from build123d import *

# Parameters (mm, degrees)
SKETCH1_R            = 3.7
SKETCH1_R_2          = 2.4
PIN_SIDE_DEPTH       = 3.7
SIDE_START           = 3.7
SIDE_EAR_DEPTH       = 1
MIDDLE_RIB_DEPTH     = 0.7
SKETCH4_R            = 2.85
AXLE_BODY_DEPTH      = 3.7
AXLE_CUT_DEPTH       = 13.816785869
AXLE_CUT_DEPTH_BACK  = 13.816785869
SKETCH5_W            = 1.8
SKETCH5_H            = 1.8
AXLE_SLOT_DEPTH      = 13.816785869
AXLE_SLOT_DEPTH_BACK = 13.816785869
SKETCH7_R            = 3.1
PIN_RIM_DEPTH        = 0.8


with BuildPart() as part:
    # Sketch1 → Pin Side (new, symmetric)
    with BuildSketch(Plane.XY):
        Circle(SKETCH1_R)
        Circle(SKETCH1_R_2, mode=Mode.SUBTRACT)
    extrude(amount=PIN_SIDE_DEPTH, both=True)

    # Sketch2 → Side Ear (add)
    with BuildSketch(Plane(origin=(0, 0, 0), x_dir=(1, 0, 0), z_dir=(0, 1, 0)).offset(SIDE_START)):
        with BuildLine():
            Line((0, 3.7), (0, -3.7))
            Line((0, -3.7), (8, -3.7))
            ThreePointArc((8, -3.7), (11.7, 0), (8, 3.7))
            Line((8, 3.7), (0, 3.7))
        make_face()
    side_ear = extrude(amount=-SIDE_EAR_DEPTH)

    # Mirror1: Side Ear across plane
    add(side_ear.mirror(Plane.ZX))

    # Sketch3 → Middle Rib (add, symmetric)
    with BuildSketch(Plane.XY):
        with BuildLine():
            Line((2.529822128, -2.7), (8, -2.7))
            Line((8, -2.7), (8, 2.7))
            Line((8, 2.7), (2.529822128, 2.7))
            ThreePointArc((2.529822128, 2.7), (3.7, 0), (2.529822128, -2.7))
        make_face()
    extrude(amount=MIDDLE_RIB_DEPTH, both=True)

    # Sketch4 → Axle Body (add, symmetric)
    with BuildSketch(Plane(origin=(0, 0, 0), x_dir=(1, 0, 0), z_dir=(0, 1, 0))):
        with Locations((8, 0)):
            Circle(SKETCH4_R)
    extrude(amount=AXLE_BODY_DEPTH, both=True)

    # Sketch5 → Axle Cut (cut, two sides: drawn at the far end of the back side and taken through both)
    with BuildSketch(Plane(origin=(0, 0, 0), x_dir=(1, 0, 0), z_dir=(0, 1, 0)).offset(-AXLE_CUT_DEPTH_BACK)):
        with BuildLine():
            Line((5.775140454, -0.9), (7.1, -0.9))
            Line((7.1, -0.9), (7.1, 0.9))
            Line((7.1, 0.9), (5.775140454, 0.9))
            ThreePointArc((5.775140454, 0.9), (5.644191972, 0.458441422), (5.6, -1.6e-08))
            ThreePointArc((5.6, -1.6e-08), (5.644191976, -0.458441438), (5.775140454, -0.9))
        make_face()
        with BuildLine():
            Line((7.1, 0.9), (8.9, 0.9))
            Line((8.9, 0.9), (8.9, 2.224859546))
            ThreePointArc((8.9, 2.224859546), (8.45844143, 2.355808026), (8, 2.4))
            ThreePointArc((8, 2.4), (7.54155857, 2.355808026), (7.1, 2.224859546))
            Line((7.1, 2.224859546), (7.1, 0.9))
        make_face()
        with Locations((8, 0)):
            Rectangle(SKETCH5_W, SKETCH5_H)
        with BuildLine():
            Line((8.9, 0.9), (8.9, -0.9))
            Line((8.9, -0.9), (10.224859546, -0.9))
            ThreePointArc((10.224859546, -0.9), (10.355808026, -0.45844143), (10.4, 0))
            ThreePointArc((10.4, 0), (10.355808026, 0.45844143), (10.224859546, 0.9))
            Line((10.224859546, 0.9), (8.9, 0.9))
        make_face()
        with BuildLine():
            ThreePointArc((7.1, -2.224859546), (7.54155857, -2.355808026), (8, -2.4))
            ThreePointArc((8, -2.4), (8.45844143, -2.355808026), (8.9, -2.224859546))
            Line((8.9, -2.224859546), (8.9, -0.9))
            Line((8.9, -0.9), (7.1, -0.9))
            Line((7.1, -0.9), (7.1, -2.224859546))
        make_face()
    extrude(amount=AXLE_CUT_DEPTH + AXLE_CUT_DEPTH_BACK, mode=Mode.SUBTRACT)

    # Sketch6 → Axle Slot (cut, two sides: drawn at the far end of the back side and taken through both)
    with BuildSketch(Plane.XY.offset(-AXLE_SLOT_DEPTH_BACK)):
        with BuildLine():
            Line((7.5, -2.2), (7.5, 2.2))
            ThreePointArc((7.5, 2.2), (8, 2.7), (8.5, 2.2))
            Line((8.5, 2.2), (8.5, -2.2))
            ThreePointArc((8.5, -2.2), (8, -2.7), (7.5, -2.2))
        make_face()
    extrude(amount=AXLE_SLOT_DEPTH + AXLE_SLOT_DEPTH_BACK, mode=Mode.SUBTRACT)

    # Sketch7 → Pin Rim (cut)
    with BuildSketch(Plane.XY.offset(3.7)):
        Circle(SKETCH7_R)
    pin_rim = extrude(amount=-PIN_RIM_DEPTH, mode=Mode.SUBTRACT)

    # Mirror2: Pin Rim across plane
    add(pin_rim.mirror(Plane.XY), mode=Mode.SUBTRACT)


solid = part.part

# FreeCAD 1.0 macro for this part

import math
import FreeCAD as App
import Part
import Sketcher

doc = App.newDocument("Part")
body = doc.addObject("PartDesign::Body", "Body")

# Sketch on XY plane
sketch1 = body.newObject("Sketcher::SketchObject", "Sketch")
sketch1.AttachmentSupport = (doc.getObject("XY_Plane"), [""])
sketch1.MapMode = "FlatFace"
sketch1.addGeometry(Part.Circle(App.Vector(0, 0, 0), App.Vector(0, 0, 1), 3.7), False)
sketch1.addGeometry(Part.Circle(App.Vector(0, 0, 0), App.Vector(0, 0, 1), 2.4), False)
sketch1.addConstraint(Sketcher.Constraint("Coincident", 0, 3, -1, 1))
sketch1.addConstraint(Sketcher.Constraint("Coincident", 1, 3, -1, 1))
sketch1.addConstraint(Sketcher.Constraint("Diameter", 0, 7.4))
sketch1.addConstraint(Sketcher.Constraint("Diameter", 1, 4.8))
pad1 = body.newObject("PartDesign::Pad", "Pad")
pad1.Profile = sketch1
pad1.Length = 7.4
pad1.Midplane = True

# Sketch on XZ plane
sketch2 = body.newObject("Sketcher::SketchObject", "Sketch001")
sketch2.AttachmentSupport = (doc.getObject("XZ_Plane"), [""])
sketch2.MapMode = "FlatFace"
sketch2.AttachmentOffset = App.Placement(App.Vector(0, 0, -3.7), App.Rotation())
sketch2.addGeometry(Part.LineSegment(App.Vector(0, -3.7, 0), App.Vector(0, 3.7, 0)), False)
sketch2.addGeometry(Part.LineSegment(App.Vector(0, 3.7, 0), App.Vector(8, 3.7, 0)), False)
sketch2.addGeometry(Part.ArcOfCircle(Part.Circle(App.Vector(8, 0, 0), App.Vector(0, 0, 1), 3.7), math.radians(-90), math.radians(90)), False)
sketch2.addGeometry(Part.LineSegment(App.Vector(8, -3.7, 0), App.Vector(0, -3.7, 0)), False)
sketch2.addConstraint(Sketcher.Constraint("Coincident", 0, 2, 1, 1))
sketch2.addConstraint(Sketcher.Constraint("Tangent", 1, 2, 2, 2))
sketch2.addConstraint(Sketcher.Constraint("Tangent", 2, 1, 3, 1))
sketch2.addConstraint(Sketcher.Constraint("Coincident", 3, 2, 0, 1))
sketch2.addConstraint(Sketcher.Constraint("Vertical", 0))
sketch2.addConstraint(Sketcher.Constraint("Horizontal", 1))
sketch2.addConstraint(Sketcher.Constraint("Horizontal", 3))
sketch2.addConstraint(Sketcher.Constraint("Symmetric", 0, 2, 3, 2, -1, 1))
sketch2.addConstraint(Sketcher.Constraint("Radius", 2, 3.7))
sketch2.addConstraint(Sketcher.Constraint("DistanceX", 1, 1, 1, 2, 8.0))
pad2 = body.newObject("PartDesign::Pad", "Pad001")
pad2.Profile = sketch2
pad2.Length = 1
doc.recompute()

mirrored = body.newObject("PartDesign::Mirrored", "Mirrored")
mirrored.Originals = [pad2]
mirrored.MirrorPlane = (doc.getObject("XZ_Plane"), [""])
body.Tip = mirrored

# Sketch on XY plane
sketch3 = body.newObject("Sketcher::SketchObject", "Sketch002")
sketch3.AttachmentSupport = (doc.getObject("XY_Plane"), [""])
sketch3.MapMode = "FlatFace"
sketch3.addGeometry(Part.LineSegment(App.Vector(2.5, -2.7, 0), App.Vector(8, -2.7, 0)), False)
sketch3.addGeometry(Part.LineSegment(App.Vector(8, -2.7, 0), App.Vector(8, 2.7, 0)), False)
sketch3.addGeometry(Part.LineSegment(App.Vector(8, 2.7, 0), App.Vector(2.5, 2.7, 0)), False)
sketch3.addGeometry(Part.ArcOfCircle(Part.Circle(App.Vector(0, 0, 0), App.Vector(0, 0, 1), 3.7), math.radians(-47), math.radians(47)), False)
sketch3.addConstraint(Sketcher.Constraint("Coincident", 0, 2, 1, 1))
sketch3.addConstraint(Sketcher.Constraint("Coincident", 1, 2, 2, 1))
sketch3.addConstraint(Sketcher.Constraint("Coincident", 2, 2, 3, 2))
sketch3.addConstraint(Sketcher.Constraint("Coincident", 3, 1, 0, 1))
sketch3.addConstraint(Sketcher.Constraint("Horizontal", 0))
sketch3.addConstraint(Sketcher.Constraint("Vertical", 1))
sketch3.addConstraint(Sketcher.Constraint("Horizontal", 2))
sketch3.addConstraint(Sketcher.Constraint("Coincident", 3, 3, -1, 1))
sketch3.addConstraint(Sketcher.Constraint("Vertical", 2, 2, 3, 1))
sketch3.addConstraint(Sketcher.Constraint("Radius", 3, 3.7))
sketch3.addConstraint(Sketcher.Constraint("DistanceY", 1, 1, 1, 2, 5.4))
sketch3.addConstraint(Sketcher.Constraint("DistanceX", -1, 1, 0, 2, 8.0))
pad3 = body.newObject("PartDesign::Pad", "Pad002")
pad3.Profile = sketch3
pad3.Length = 1.4
pad3.Midplane = True

# Sketch on XZ plane
sketch4 = body.newObject("Sketcher::SketchObject", "Sketch003")
sketch4.AttachmentSupport = (doc.getObject("XZ_Plane"), [""])
sketch4.MapMode = "FlatFace"
sketch4.addGeometry(Part.Circle(App.Vector(8, 0, 0), App.Vector(0, 0, 1), 2.9), False)
sketch4.addConstraint(Sketcher.Constraint("PointOnObject", 0, 3, -1))
sketch4.addConstraint(Sketcher.Constraint("Diameter", 0, 5.7))
sketch4.addConstraint(Sketcher.Constraint("DistanceX", -1, 1, 0, 3, 8.0))
pad4 = body.newObject("PartDesign::Pad", "Pad003")
pad4.Profile = sketch4
pad4.Length = 7.4
pad4.Midplane = True

# Sketch on XZ plane
sketch5 = body.newObject("Sketcher::SketchObject", "Sketch004")
sketch5.AttachmentSupport = (doc.getObject("XZ_Plane"), [""])
sketch5.MapMode = "FlatFace"
sketch5.addGeometry(Part.LineSegment(App.Vector(5.8, 0.9, 0), App.Vector(7.1, 0.9, 0)), False)
sketch5.addGeometry(Part.LineSegment(App.Vector(7.1, 0.9, 0), App.Vector(7.1, 2.2, 0)), False)
sketch5.addGeometry(Part.ArcOfCircle(Part.Circle(App.Vector(8, 0, 0), App.Vector(0, 0, 1), 2.4), math.radians(90), math.radians(112)), False)
sketch5.addGeometry(Part.ArcOfCircle(Part.Circle(App.Vector(8, 0, 0), App.Vector(0, 0, 1), 2.4), math.radians(68), math.radians(90)), False)
sketch5.addGeometry(Part.LineSegment(App.Vector(8.9, 2.2, 0), App.Vector(8.9, 0.9, 0)), False)
sketch5.addGeometry(Part.LineSegment(App.Vector(8.9, 0.9, 0), App.Vector(10.2, 0.9, 0)), False)
sketch5.addGeometry(Part.ArcOfCircle(Part.Circle(App.Vector(8, 0, 0), App.Vector(0, 0, 1), 2.4), math.radians(0), math.radians(22)), False)
sketch5.addGeometry(Part.ArcOfCircle(Part.Circle(App.Vector(8, 0, 0), App.Vector(0, 0, 1), 2.4), math.radians(-22), math.radians(0)), False)
sketch5.addGeometry(Part.LineSegment(App.Vector(10.2, -0.9, 0), App.Vector(8.9, -0.9, 0)), False)
sketch5.addGeometry(Part.LineSegment(App.Vector(8.9, -0.9, 0), App.Vector(8.9, -2.2, 0)), False)
sketch5.addGeometry(Part.ArcOfCircle(Part.Circle(App.Vector(8, 0, 0), App.Vector(0, 0, 1), 2.4), math.radians(-90), math.radians(-68)), False)
sketch5.addGeometry(Part.ArcOfCircle(Part.Circle(App.Vector(8, 0, 0), App.Vector(0, 0, 1), 2.4), math.radians(-112), math.radians(-90)), False)
sketch5.addGeometry(Part.LineSegment(App.Vector(7.1, -2.2, 0), App.Vector(7.1, -0.9, 0)), False)
sketch5.addGeometry(Part.LineSegment(App.Vector(7.1, -0.9, 0), App.Vector(5.8, -0.9, 0)), False)
sketch5.addGeometry(Part.ArcOfCircle(Part.Circle(App.Vector(8, 0, 0), App.Vector(0, 0, 1), 2.4), math.radians(180), math.radians(202)), False)
sketch5.addGeometry(Part.ArcOfCircle(Part.Circle(App.Vector(8, 0, 0), App.Vector(0, 0, 1), 2.4), math.radians(158), math.radians(180)), False)
sketch5.addConstraint(Sketcher.Constraint("Coincident", 0, 2, 1, 1))
sketch5.addConstraint(Sketcher.Constraint("Coincident", 1, 2, 2, 2))
sketch5.addConstraint(Sketcher.Constraint("Tangent", 2, 1, 3, 2))
sketch5.addConstraint(Sketcher.Constraint("Coincident", 3, 1, 4, 1))
sketch5.addConstraint(Sketcher.Constraint("Coincident", 4, 2, 5, 1))
sketch5.addConstraint(Sketcher.Constraint("Coincident", 5, 2, 6, 2))
sketch5.addConstraint(Sketcher.Constraint("Tangent", 6, 1, 7, 2))
sketch5.addConstraint(Sketcher.Constraint("Coincident", 7, 1, 8, 1))
sketch5.addConstraint(Sketcher.Constraint("Coincident", 8, 2, 9, 1))
sketch5.addConstraint(Sketcher.Constraint("Coincident", 9, 2, 10, 2))
sketch5.addConstraint(Sketcher.Constraint("Tangent", 10, 1, 11, 2))
sketch5.addConstraint(Sketcher.Constraint("Coincident", 11, 1, 12, 1))
sketch5.addConstraint(Sketcher.Constraint("Coincident", 12, 2, 13, 1))
sketch5.addConstraint(Sketcher.Constraint("Coincident", 13, 2, 14, 2))
sketch5.addConstraint(Sketcher.Constraint("Tangent", 14, 1, 15, 2))
sketch5.addConstraint(Sketcher.Constraint("Coincident", 15, 1, 0, 1))
sketch5.addConstraint(Sketcher.Constraint("Horizontal", 0))
sketch5.addConstraint(Sketcher.Constraint("Vertical", 1))
sketch5.addConstraint(Sketcher.Constraint("Vertical", 4))
sketch5.addConstraint(Sketcher.Constraint("Horizontal", 5))
sketch5.addConstraint(Sketcher.Constraint("Horizontal", 8))
sketch5.addConstraint(Sketcher.Constraint("Vertical", 9))
sketch5.addConstraint(Sketcher.Constraint("Vertical", 12))
sketch5.addConstraint(Sketcher.Constraint("Horizontal", 13))
sketch5.addConstraint(Sketcher.Constraint("Coincident", 6, 3, 2, 3))
sketch5.addConstraint(Sketcher.Constraint("Coincident", 10, 3, 2, 3))
sketch5.addConstraint(Sketcher.Constraint("Coincident", 14, 3, 2, 3))
sketch5.addConstraint(Sketcher.Constraint("Equal", 2, 3))
sketch5.addConstraint(Sketcher.Constraint("Equal", 3, 6))
sketch5.addConstraint(Sketcher.Constraint("Equal", 6, 7))
sketch5.addConstraint(Sketcher.Constraint("Equal", 7, 10))
sketch5.addConstraint(Sketcher.Constraint("Equal", 10, 11))
sketch5.addConstraint(Sketcher.Constraint("Equal", 11, 14))
sketch5.addConstraint(Sketcher.Constraint("Equal", 14, 15))
sketch5.addConstraint(Sketcher.Constraint("Symmetric", 5, 2, 7, 1, -1))
sketch5.addConstraint(Sketcher.Constraint("Symmetric", 0, 2, 12, 2, -1))
sketch5.addConstraint(Sketcher.Constraint("PointOnObject", 6, 1, -1))
sketch5.addConstraint(Sketcher.Constraint("PointOnObject", 14, 1, -1))
sketch5.addConstraint(Sketcher.Constraint("Horizontal", 1, 2, 3, 1))
sketch5.addConstraint(Sketcher.Constraint("Horizontal", 0, 2, 4, 2))
sketch5.addConstraint(Sketcher.Constraint("Horizontal", 9, 2, 11, 1))
sketch5.addConstraint(Sketcher.Constraint("Vertical", 15, 3, 2, 1))
sketch5.addConstraint(Sketcher.Constraint("Vertical", 2, 1, 10, 1))
sketch5.addConstraint(Sketcher.Constraint("Equal", 13, 1))
sketch5.addConstraint(Sketcher.Constraint("Radius", 2, 2.4))
sketch5.addConstraint(Sketcher.Constraint("DistanceX", -1, 1, 2, 3, 8.0))
sketch5.addConstraint(Sketcher.Constraint("DistanceX", -1, 1, 0, 2, 7.1))
pocket1 = body.newObject("PartDesign::Pocket", "Pocket")
pocket1.Profile = sketch5
pocket1.Type = "ThroughAll"
pocket1.Midplane = True

# Sketch on XY plane
sketch6 = body.newObject("Sketcher::SketchObject", "Sketch005")
sketch6.AttachmentSupport = (doc.getObject("XY_Plane"), [""])
sketch6.MapMode = "FlatFace"
sketch6.addGeometry(Part.LineSegment(App.Vector(7.5, 2.2, 0), App.Vector(7.5, -2.2, 0)), False)
sketch6.addGeometry(Part.ArcOfCircle(Part.Circle(App.Vector(8, -2.2, 0), App.Vector(0, 0, 1), 0.5), math.radians(180), math.radians(360)), False)
sketch6.addGeometry(Part.LineSegment(App.Vector(8.5, -2.2, 0), App.Vector(8.5, 2.2, 0)), False)
sketch6.addGeometry(Part.ArcOfCircle(Part.Circle(App.Vector(8, 2.2, 0), App.Vector(0, 0, 1), 0.5), math.radians(0), math.radians(180)), False)
sketch6.addConstraint(Sketcher.Constraint("Tangent", 0, 2, 1, 1))
sketch6.addConstraint(Sketcher.Constraint("Tangent", 1, 2, 2, 1))
sketch6.addConstraint(Sketcher.Constraint("Tangent", 2, 2, 3, 1))
sketch6.addConstraint(Sketcher.Constraint("Tangent", 3, 2, 0, 1))
sketch6.addConstraint(Sketcher.Constraint("Vertical", 0))
sketch6.addConstraint(Sketcher.Constraint("Vertical", 2))
sketch6.addConstraint(Sketcher.Constraint("Radius", 1, 0.5))
sketch6.addConstraint(Sketcher.Constraint("DistanceY", 0, 2, 0, 1, 4.4))
sketch6.addConstraint(Sketcher.Constraint("DistanceX", -1, 1, 1, 3, 8.0))
sketch6.addConstraint(Sketcher.Constraint("DistanceY", 1, 3, -1, 1, 2.2))
pocket2 = body.newObject("PartDesign::Pocket", "Pocket001")
pocket2.Profile = sketch6
pocket2.Type = "ThroughAll"
pocket2.Midplane = True

# Sketch on XY plane
sketch7 = body.newObject("Sketcher::SketchObject", "Sketch006")
sketch7.AttachmentSupport = (doc.getObject("XY_Plane"), [""])
sketch7.MapMode = "FlatFace"
sketch7.AttachmentOffset = App.Placement(App.Vector(0, 0, 3.7), App.Rotation())
sketch7.addGeometry(Part.Circle(App.Vector(0, 0, 0), App.Vector(0, 0, 1), 3.1), False)
sketch7.addConstraint(Sketcher.Constraint("Coincident", 0, 3, -1, 1))
sketch7.addConstraint(Sketcher.Constraint("Diameter", 0, 6.2))
pocket3 = body.newObject("PartDesign::Pocket", "Pocket002")
pocket3.Profile = sketch7
pocket3.Length = 0.8
doc.recompute()

mirrored2 = body.newObject("PartDesign::Mirrored", "Mirrored001")
mirrored2.Originals = [pocket3]
mirrored2.MirrorPlane = (doc.getObject("XY_Plane"), [""])
body.Tip = mirrored2

doc.recompute()
